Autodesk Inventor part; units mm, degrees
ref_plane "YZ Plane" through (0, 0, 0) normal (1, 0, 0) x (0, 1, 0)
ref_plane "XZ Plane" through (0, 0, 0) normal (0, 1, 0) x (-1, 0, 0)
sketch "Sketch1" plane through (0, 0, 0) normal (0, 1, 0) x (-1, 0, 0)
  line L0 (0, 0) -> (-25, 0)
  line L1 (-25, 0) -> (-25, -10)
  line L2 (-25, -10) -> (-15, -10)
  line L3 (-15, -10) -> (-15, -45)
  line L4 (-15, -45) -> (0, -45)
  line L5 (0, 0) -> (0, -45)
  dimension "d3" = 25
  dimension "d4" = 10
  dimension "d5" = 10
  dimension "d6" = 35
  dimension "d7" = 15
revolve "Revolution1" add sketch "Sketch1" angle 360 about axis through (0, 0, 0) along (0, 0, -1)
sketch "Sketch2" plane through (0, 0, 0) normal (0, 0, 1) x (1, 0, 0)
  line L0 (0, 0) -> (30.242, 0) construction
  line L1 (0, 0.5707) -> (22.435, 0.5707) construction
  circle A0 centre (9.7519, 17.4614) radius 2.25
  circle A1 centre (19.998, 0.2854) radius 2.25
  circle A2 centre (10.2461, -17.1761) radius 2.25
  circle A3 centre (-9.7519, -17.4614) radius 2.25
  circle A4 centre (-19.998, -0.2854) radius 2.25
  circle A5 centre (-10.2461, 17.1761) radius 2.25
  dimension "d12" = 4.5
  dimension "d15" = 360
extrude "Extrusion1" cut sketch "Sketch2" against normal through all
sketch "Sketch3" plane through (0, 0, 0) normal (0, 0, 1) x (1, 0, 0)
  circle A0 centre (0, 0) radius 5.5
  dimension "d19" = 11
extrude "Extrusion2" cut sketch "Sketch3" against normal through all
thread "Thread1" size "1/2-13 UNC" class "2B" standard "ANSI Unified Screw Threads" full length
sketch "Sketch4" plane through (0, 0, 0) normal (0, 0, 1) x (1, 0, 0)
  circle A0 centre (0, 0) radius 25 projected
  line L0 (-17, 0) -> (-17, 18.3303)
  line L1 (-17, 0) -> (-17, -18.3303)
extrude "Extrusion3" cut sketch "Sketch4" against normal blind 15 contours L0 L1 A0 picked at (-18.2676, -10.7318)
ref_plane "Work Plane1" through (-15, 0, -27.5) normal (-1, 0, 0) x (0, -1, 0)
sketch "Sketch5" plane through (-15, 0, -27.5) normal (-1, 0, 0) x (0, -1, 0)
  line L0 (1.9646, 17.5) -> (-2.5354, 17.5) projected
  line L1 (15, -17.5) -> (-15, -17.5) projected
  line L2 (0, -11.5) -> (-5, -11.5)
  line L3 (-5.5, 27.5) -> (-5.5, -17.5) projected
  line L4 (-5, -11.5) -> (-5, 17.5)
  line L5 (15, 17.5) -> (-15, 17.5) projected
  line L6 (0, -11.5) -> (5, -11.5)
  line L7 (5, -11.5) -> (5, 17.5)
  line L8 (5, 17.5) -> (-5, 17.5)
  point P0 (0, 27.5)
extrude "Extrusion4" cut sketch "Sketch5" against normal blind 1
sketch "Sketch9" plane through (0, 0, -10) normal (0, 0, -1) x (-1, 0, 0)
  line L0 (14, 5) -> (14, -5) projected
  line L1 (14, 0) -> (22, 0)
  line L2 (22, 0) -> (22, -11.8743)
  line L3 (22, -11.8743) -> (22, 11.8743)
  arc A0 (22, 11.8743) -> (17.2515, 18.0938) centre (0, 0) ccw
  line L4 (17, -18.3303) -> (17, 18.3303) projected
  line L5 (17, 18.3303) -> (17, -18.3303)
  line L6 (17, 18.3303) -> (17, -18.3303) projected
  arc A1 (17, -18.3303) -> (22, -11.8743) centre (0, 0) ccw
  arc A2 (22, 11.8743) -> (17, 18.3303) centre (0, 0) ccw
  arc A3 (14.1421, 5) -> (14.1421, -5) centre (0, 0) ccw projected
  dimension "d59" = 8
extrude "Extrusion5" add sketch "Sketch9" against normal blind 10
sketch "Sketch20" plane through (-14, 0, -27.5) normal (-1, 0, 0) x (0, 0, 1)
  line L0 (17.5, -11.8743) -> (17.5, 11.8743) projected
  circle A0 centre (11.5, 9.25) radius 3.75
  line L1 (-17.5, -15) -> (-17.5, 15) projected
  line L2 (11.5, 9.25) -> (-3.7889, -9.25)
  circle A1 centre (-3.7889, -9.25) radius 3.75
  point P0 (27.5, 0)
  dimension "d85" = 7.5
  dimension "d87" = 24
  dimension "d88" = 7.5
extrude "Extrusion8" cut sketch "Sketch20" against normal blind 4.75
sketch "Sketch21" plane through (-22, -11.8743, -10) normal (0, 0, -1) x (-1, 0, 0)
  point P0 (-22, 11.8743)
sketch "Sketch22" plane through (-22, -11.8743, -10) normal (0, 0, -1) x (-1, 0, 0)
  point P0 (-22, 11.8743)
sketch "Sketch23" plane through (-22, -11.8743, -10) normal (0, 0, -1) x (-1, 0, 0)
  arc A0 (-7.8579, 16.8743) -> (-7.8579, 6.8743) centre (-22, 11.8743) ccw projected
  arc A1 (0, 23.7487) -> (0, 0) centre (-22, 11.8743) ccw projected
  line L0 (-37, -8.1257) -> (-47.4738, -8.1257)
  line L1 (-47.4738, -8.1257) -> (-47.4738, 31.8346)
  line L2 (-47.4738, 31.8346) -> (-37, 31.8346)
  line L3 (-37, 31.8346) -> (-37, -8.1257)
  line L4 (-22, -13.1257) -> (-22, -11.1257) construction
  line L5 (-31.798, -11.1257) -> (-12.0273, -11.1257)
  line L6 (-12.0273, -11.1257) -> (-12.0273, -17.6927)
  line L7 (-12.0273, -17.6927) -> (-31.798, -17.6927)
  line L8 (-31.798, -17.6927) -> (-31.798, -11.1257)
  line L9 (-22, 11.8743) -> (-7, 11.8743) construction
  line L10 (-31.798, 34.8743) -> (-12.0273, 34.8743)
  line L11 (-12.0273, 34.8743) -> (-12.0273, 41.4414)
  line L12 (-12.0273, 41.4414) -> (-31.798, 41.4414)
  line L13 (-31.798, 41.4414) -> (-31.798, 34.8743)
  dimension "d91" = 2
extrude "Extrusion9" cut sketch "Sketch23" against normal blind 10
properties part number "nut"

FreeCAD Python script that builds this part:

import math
import FreeCAD as App
import Part
import Sketcher


def add_polygon(sketch, points):
    """Adds a closed chain of lines whose ends are joined by coincident constraints."""
    first, n = sketch.GeometryCount, len(points)
    for a, b in zip(points, points[1:] + points[:1]):
        sketch.addGeometry(Part.LineSegment(App.Vector(*a, 0), App.Vector(*b, 0)), False)
    for i in range(n):
        sketch.addConstraint(Sketcher.Constraint("Coincident", first + i, 2, first + (i + 1) % n, 1))

doc = App.newDocument("Part")
body = doc.addObject("PartDesign::Body", "Body")

sketch1 = body.newObject("Sketcher::SketchObject", "Sketch")
sketch1.AttachmentSupport = (doc.getObject("XZ_Plane"), [""])
sketch1.MapMode = "FlatFace"
add_polygon(sketch1, [(0, -45), (0, 0), (25, 0), (25, -10), (15, -10), (15, -45)])
sketch1.addConstraint([
    Sketcher.Constraint("Vertical", 0),
    Sketcher.Constraint("Horizontal", 1),
    Sketcher.Constraint("Vertical", 2),
    Sketcher.Constraint("Horizontal", 3),
    Sketcher.Constraint("Vertical", 4),
    Sketcher.Constraint("Horizontal", 5),
    Sketcher.Constraint("Coincident", 0, 2, -1, 1),
    Sketcher.Constraint("Equal", 3, 2),
    Sketcher.Constraint("DistanceX", 1, 1, 1, 2, 25.0),
    Sketcher.Constraint("DistanceX", 3, 2, 3, 1, 10.0),
    Sketcher.Constraint("DistanceY", 4, 2, 4, 1, 35.0),
])
revolution = body.newObject("PartDesign::Revolution", "Revolution")
revolution.Profile = sketch1
revolution.ReferenceAxis = (sketch1, ["V_Axis"])
revolution.Angle = 360

sketch2 = body.newObject("Sketcher::SketchObject", "Sketch001")
sketch2.AttachmentSupport = (doc.getObject("XY_Plane"), [""])
sketch2.MapMode = "FlatFace"
sketch2.addGeometry([
    Part.Circle(App.Vector(9.8, 17.5, 0), App.Vector(0, 0, 1), 2.2),
    Part.Circle(App.Vector(20, 0.3, 0), App.Vector(0, 0, 1), 2.2),
    Part.Circle(App.Vector(10.2, -17.2, 0), App.Vector(0, 0, 1), 2.2),
    Part.Circle(App.Vector(-9.8, -17.5, 0), App.Vector(0, 0, 1), 2.2),
    Part.Circle(App.Vector(-20, -0.3, 0), App.Vector(0, 0, 1), 2.2),
    Part.Circle(App.Vector(-10.2, 17.2, 0), App.Vector(0, 0, 1), 2.2),
], False)
sketch2.addConstraint([
    Sketcher.Constraint("Equal", 0, 1),
    Sketcher.Constraint("Equal", 1, 2),
    Sketcher.Constraint("Equal", 2, 3),
    Sketcher.Constraint("Equal", 3, 4),
    Sketcher.Constraint("Equal", 4, 5),
    Sketcher.Constraint("Symmetric", 0, 3, 3, 3, -1, 1),
    Sketcher.Constraint("Symmetric", 1, 3, 4, 3, -1, 1),
    Sketcher.Constraint("Symmetric", 2, 3, 5, 3, -1, 1),
    Sketcher.Constraint("Diameter", 0, 4.5),
    Sketcher.Constraint("DistanceX", 3, 3, 1, 3, 29.75),
    Sketcher.Constraint("DistanceX", -1, 1, 0, 3, 9.752),
    Sketcher.Constraint("DistanceX", -1, 1, 2, 3, 10.246),
    Sketcher.Constraint("DistanceY", 2, 3, -1, 1, 17.176),
    Sketcher.Constraint("DistanceY", 1, 3, 0, 3, 17.176),
    Sketcher.Constraint("DistanceY", -1, 1, 0, 3, 17.4614),
])
pocket1 = body.newObject("PartDesign::Pocket", "Pocket")
pocket1.Profile = sketch2
pocket1.Type = "ThroughAll"

sketch3 = body.newObject("Sketcher::SketchObject", "Sketch002")
sketch3.AttachmentSupport = (doc.getObject("XY_Plane"), [""])
sketch3.MapMode = "FlatFace"
sketch3.addGeometry(Part.Circle(App.Vector(0, 0, 0), App.Vector(0, 0, 1), 6), False)
sketch3.addConstraint([
    Sketcher.Constraint("Coincident", 0, 3, -1, 1),
    Sketcher.Constraint("Diameter", 0, 11.0),
])
pocket2 = body.newObject("PartDesign::Pocket", "Pocket001")
pocket2.Profile = sketch3
pocket2.Type = "ThroughAll"

sketch4 = body.newObject("Sketcher::SketchObject", "Sketch003")
sketch4.AttachmentSupport = (doc.getObject("XY_Plane"), [""])
sketch4.MapMode = "FlatFace"
sketch4.addGeometry([
    Part.LineSegment(App.Vector(-17, -18, 0), App.Vector(-17, 18, 0)),
    Part.ArcOfCircle(Part.Circle(App.Vector(0, 0, 0), App.Vector(0, 0, 1), 25), math.radians(133), math.radians(227)),
], False)
sketch4.addConstraint([
    Sketcher.Constraint("Coincident", 0, 1, 1, 2),
    Sketcher.Constraint("Coincident", 1, 1, 0, 2),
    Sketcher.Constraint("Vertical", 0),
    Sketcher.Constraint("Coincident", 1, 3, -1, 1),
    Sketcher.Constraint("Radius", 1, 25.0),
    Sketcher.Constraint("DistanceX", 0, 1, -1, 1, 17.0),
])
pocket3 = body.newObject("PartDesign::Pocket", "Pocket002")
pocket3.Profile = sketch4
pocket3.Length = 15

sketch5 = body.newObject("Sketcher::SketchObject", "Sketch004")
sketch5.AttachmentSupport = (doc.getObject("YZ_Plane"), [""])
sketch5.MapMode = "FlatFace"
sketch5.AttachmentOffset = App.Placement(App.Vector(0, 0, -15), App.Rotation())
add_polygon(sketch5, [(-5, -10), (5, -10), (5, -39), (-5, -39)])
sketch5.addConstraint([
    Sketcher.Constraint("Horizontal", 0),
    Sketcher.Constraint("Vertical", 1),
    Sketcher.Constraint("Horizontal", 2),
    Sketcher.Constraint("Vertical", 3),
    Sketcher.Constraint("DistanceX", 0, 1, 0, 2, 10.0),
    Sketcher.Constraint("DistanceY", 1, 2, 1, 1, 29.0),
    Sketcher.Constraint("DistanceX", -1, 1, 0, 2, 5.0),
    Sketcher.Constraint("DistanceY", 0, 2, -1, 1, 10.0),
])
pocket4 = body.newObject("PartDesign::Pocket", "Pocket003")
pocket4.Profile = sketch5
pocket4.Length = 1
pocket4.Reversed = True

sketch6 = body.newObject("Sketcher::SketchObject", "Sketch005")
sketch6.AttachmentSupport = (doc.getObject("XY_Plane"), [""])
sketch6.MapMode = "FlatFace"
sketch6.AttachmentOffset = App.Placement(App.Vector(0, 0, -10), App.Rotation())
sketch6.addGeometry([
    Part.LineSegment(App.Vector(-17, 18.33, 0), App.Vector(-17, -18.33, 0)),
    Part.ArcOfCircle(Part.Circle(App.Vector(0, 0, 0), App.Vector(0, 0, 1), 25), math.radians(-151.64), math.radians(-132.84)),
    Part.LineSegment(App.Vector(-22, -11.87, 0), App.Vector(-22, 11.87, 0)),
    Part.ArcOfCircle(Part.Circle(App.Vector(0, 0, 0), App.Vector(0, 0, 1), 25), math.radians(133.63), math.radians(151.64)),
    Part.ArcOfCircle(Part.Circle(App.Vector(0, 0, 0), App.Vector(0, 0, 1), 25), math.radians(132.84), math.radians(133.63)),
], False)
sketch6.addConstraint([
    Sketcher.Constraint("Coincident", 0, 2, 1, 2),
    Sketcher.Constraint("Coincident", 1, 1, 2, 1),
    Sketcher.Constraint("Coincident", 2, 2, 3, 2),
    Sketcher.Constraint("Tangent", 3, 1, 4, 2),
    Sketcher.Constraint("Coincident", 4, 1, 0, 1),
    Sketcher.Constraint("Vertical", 0),
    Sketcher.Constraint("Vertical", 2),
    Sketcher.Constraint("Coincident", 1, 3, -1, 1),
    Sketcher.Constraint("Coincident", 3, 3, -1, 1),
    Sketcher.Constraint("Equal", 1, 3),
    Sketcher.Constraint("Equal", 3, 4),
    Sketcher.Constraint("Radius", 1, 25.0),
    Sketcher.Constraint("DistanceX", 0, 2, -1, 1, 17.0),
    Sketcher.Constraint("DistanceX", 1, 1, -1, 1, 22.0),
    Sketcher.Constraint("DistanceY", 1, 1, 3, 1, 29.968),
])
pad1 = body.newObject("PartDesign::Pad", "Pad")
pad1.Profile = sketch6
pad1.Length = 10

sketch7 = body.newObject("Sketcher::SketchObject", "Sketch006")
sketch7.AttachmentSupport = (doc.getObject("YZ_Plane"), [""])
sketch7.MapMode = "FlatFace"
sketch7.AttachmentOffset = App.Placement(App.Vector(0, 0, -14), App.Rotation())
sketch7.addGeometry([
    Part.Circle(App.Vector(9.2, -16, 0), App.Vector(0, 0, 1), 3.8),
    Part.Circle(App.Vector(-9.2, -31.3, 0), App.Vector(0, 0, 1), 3.8),
], False)
sketch7.addConstraint([
    Sketcher.Constraint("Equal", 0, 1),
    Sketcher.Constraint("Diameter", 0, 7.5),
    Sketcher.Constraint("DistanceY", 0, 3, -1, 1, 16.0),
    Sketcher.Constraint("DistanceX", 1, 3, 0, 3, 18.5),
    Sketcher.Constraint("DistanceX", -1, 1, 0, 3, 9.25),
    Sketcher.Constraint("DistanceY", 1, 3, -1, 1, 31.289),
])
pocket5 = body.newObject("PartDesign::Pocket", "Pocket004")
pocket5.Profile = sketch7
pocket5.Length = 4.75
pocket5.Reversed = True

sketch8 = body.newObject("Sketcher::SketchObject", "Sketch007")
sketch8.AttachmentSupport = (doc.getObject("XY_Plane"), [""])
sketch8.MapMode = "FlatFace"
sketch8.AttachmentOffset = App.Placement(App.Vector(0, 0, -10), App.Rotation())
add_polygon(sketch8, [(10, -23), (10, -30), (-10, -30), (-10, -23)])
add_polygon(sketch8, [(25, -20), (15, -20), (15, 20), (25, 20)])
add_polygon(sketch8, [(10, 30), (10, 23), (-10, 23), (-10, 30)])
sketch8.addConstraint([
    Sketcher.Constraint("Vertical", 0),
    Sketcher.Constraint("Horizontal", 1),
    Sketcher.Constraint("Vertical", 2),
    Sketcher.Constraint("Horizontal", 3),
    Sketcher.Constraint("Horizontal", 4),
    Sketcher.Constraint("Vertical", 5),
    Sketcher.Constraint("Horizontal", 6),
    Sketcher.Constraint("Vertical", 7),
    Sketcher.Constraint("Vertical", 8),
    Sketcher.Constraint("Horizontal", 9),
    Sketcher.Constraint("Vertical", 10),
    Sketcher.Constraint("Horizontal", 11),
    Sketcher.Constraint("Symmetric", 3, 2, 8, 2, -1),
    Sketcher.Constraint("Symmetric", 1, 2, 10, 2, -1),
    Sketcher.Constraint("DistanceY", 2, 2, -1, 1, 23.0),
    Sketcher.Constraint("DistanceX", -1, 1, 4, 2, 15.0),
    Sketcher.Constraint("DistanceY", 4, 2, -1, 1, 20.0),
    Sketcher.Constraint("DistanceY", 0, 2, 0, 1, 6.567),
    Sketcher.Constraint("DistanceX", 1, 2, 1, 1, 19.7707),
    Sketcher.Constraint("DistanceX", 4, 2, 4, 1, 10.4738),
    Sketcher.Constraint("DistanceY", 5, 1, 5, 2, 39.9603),
    Sketcher.Constraint("DistanceX", -1, 1, 0, 2, 9.798),
])
pocket6 = body.newObject("PartDesign::Pocket", "Pocket005")
pocket6.Profile = sketch8
pocket6.Length = 10
pocket6.Reversed = True

doc.recompute()
